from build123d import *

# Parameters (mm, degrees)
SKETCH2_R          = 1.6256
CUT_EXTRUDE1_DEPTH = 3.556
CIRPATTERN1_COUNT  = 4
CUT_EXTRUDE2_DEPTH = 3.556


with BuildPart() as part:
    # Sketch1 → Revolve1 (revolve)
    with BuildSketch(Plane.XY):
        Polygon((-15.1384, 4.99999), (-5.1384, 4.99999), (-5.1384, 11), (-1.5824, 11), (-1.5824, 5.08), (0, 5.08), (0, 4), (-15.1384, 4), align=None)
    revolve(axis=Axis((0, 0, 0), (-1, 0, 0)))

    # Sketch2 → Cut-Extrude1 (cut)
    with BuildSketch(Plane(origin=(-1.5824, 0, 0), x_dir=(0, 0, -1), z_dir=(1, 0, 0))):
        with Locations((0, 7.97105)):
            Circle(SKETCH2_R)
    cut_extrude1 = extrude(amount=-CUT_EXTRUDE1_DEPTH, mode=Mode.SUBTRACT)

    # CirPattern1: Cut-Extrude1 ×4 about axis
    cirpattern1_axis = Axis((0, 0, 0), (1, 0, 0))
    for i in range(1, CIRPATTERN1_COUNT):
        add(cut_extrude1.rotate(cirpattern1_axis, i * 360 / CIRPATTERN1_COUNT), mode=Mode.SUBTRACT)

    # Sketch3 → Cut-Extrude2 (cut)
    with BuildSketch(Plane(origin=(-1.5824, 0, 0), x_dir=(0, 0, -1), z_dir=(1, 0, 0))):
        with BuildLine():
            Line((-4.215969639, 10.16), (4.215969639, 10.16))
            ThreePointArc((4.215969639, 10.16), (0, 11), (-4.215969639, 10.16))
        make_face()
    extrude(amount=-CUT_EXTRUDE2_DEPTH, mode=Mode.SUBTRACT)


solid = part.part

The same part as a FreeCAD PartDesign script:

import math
import FreeCAD as App
import Part
import Sketcher

V = App.Vector
Q = App.Units.Quantity


def add_polygon(sketch, points):
    """Adds a closed chain of lines whose ends are joined by coincident constraints."""
    first, n = sketch.GeometryCount, len(points)
    for a, b in zip(points, points[1:] + points[:1]):
        sketch.addGeometry(Part.LineSegment(App.Vector(*a, 0), App.Vector(*b, 0)), False)
    for i in range(n):
        sketch.addConstraint(Sketcher.Constraint("Coincident", first + i, 2, first + (i + 1) % n, 1))

doc = App.newDocument("Part")
body = doc.addObject("PartDesign::Body", "Body")

sketch1 = body.newObject("Sketcher::SketchObject", "Sketch")
sketch1.AttachmentSupport = (doc.getObject("XY_Plane"), [""])
sketch1.MapMode = "FlatFace"
add_polygon(sketch1, [(-5.1384, 4.99999), (-15.1384, 4.99999), (-15.1384, 4), (0, 4), (0, 5.08), (-1.5824, 5.08), (-1.5824, 11), (-5.1384, 11)])
sketch1.addConstraint([
    Sketcher.Constraint("Horizontal", 0),
    Sketcher.Constraint("Vertical", 1),
    Sketcher.Constraint("Horizontal", 2),
    Sketcher.Constraint("Vertical", 3),
    Sketcher.Constraint("Horizontal", 4),
    Sketcher.Constraint("Vertical", 5),
    Sketcher.Constraint("Horizontal", 6),
    Sketcher.Constraint("Vertical", 7),
    Sketcher.Constraint("PointOnObject", 2, 2, -2),
    Sketcher.Constraint("DistanceX", 6, 2, 6, 1, Q("0.14 in")),
    Sketcher.Constraint("DistanceY", -1, 1, 3, 2, Q("0.2 in")),
    Sketcher.Constraint("DistanceX", 2, 1, 2, 2, Q("0.596 in")),
    Sketcher.Constraint("DistanceX", 0, 2, 0, 1, 10.0),
    Sketcher.Constraint("DistanceY", 3, 1, 3, 2, 1.08),
    Sketcher.Constraint("DistanceY", 5, 1, 5, 2, 5.92),
    Sketcher.Constraint("DistanceY", 1, 2, 1, 1, 0.99999),
])
revolution = body.newObject("PartDesign::Revolution", "Revolution")
revolution.Profile = sketch1
revolution.ReferenceAxis = (sketch1, ["H_Axis"])
revolution.Angle = 360

sketch2 = body.newObject("Sketcher::SketchObject", "Sketch001")
sketch2.AttachmentSupport = (doc.getObject("YZ_Plane"), [""])
sketch2.MapMode = "FlatFace"
sketch2.AttachmentOffset = App.Placement(V(0, 0, -1.5824), App.Rotation())
sketch2.addGeometry(Part.Circle(V(7.97105, 0, 0), V(0, 0, 1), 1.6256), False)
sketch2.addConstraint([
    Sketcher.Constraint("PointOnObject", 0, 3, -1),
    Sketcher.Constraint("Diameter", 0, Q("0.128 in")),
    Sketcher.Constraint("DistanceX", -1, 1, 0, 3, 7.97105),
])
pocket1 = body.newObject("PartDesign::Pocket", "Pocket")
pocket1.Profile = sketch2
pocket1.Length = Q("0.14 in")
doc.recompute()

polarpattern = body.newObject("PartDesign::PolarPattern", "PolarPattern")
polarpattern.Originals = [pocket1]
polarpattern.Axis = (doc.getObject("X_Axis"), [""])
polarpattern.Angle = 360
polarpattern.Occurrences = 4
body.Tip = polarpattern

sketch3 = body.newObject("Sketcher::SketchObject", "Sketch002")
sketch3.AttachmentSupport = (doc.getObject("YZ_Plane"), [""])
sketch3.MapMode = "FlatFace"
sketch3.AttachmentOffset = App.Placement(V(0, 0, -1.5824), App.Rotation())
sketch3.addGeometry([
    Part.LineSegment(V(10.16, 4.21597, 0), V(10.16, -4.21597, 0)),
    Part.ArcOfCircle(Part.Circle(V(0, 0, 0), V(0, 0, 1), 11), math.radians(-22.53638), math.radians(22.53638)),
], False)
sketch3.addConstraint([
    Sketcher.Constraint("Coincident", 0, 1, 1, 2),
    Sketcher.Constraint("Coincident", 1, 1, 0, 2),
    Sketcher.Constraint("Vertical", 0),
    Sketcher.Constraint("Coincident", 1, 3, -1, 1),
    Sketcher.Constraint("DistanceX", -1, 1, 0, 1, Q("0.4 in")),
    Sketcher.Constraint("Radius", 1, 11.0),
])
pocket2 = body.newObject("PartDesign::Pocket", "Pocket001")
pocket2.Profile = sketch3
pocket2.Length = Q("0.14 in")

doc.recompute()
